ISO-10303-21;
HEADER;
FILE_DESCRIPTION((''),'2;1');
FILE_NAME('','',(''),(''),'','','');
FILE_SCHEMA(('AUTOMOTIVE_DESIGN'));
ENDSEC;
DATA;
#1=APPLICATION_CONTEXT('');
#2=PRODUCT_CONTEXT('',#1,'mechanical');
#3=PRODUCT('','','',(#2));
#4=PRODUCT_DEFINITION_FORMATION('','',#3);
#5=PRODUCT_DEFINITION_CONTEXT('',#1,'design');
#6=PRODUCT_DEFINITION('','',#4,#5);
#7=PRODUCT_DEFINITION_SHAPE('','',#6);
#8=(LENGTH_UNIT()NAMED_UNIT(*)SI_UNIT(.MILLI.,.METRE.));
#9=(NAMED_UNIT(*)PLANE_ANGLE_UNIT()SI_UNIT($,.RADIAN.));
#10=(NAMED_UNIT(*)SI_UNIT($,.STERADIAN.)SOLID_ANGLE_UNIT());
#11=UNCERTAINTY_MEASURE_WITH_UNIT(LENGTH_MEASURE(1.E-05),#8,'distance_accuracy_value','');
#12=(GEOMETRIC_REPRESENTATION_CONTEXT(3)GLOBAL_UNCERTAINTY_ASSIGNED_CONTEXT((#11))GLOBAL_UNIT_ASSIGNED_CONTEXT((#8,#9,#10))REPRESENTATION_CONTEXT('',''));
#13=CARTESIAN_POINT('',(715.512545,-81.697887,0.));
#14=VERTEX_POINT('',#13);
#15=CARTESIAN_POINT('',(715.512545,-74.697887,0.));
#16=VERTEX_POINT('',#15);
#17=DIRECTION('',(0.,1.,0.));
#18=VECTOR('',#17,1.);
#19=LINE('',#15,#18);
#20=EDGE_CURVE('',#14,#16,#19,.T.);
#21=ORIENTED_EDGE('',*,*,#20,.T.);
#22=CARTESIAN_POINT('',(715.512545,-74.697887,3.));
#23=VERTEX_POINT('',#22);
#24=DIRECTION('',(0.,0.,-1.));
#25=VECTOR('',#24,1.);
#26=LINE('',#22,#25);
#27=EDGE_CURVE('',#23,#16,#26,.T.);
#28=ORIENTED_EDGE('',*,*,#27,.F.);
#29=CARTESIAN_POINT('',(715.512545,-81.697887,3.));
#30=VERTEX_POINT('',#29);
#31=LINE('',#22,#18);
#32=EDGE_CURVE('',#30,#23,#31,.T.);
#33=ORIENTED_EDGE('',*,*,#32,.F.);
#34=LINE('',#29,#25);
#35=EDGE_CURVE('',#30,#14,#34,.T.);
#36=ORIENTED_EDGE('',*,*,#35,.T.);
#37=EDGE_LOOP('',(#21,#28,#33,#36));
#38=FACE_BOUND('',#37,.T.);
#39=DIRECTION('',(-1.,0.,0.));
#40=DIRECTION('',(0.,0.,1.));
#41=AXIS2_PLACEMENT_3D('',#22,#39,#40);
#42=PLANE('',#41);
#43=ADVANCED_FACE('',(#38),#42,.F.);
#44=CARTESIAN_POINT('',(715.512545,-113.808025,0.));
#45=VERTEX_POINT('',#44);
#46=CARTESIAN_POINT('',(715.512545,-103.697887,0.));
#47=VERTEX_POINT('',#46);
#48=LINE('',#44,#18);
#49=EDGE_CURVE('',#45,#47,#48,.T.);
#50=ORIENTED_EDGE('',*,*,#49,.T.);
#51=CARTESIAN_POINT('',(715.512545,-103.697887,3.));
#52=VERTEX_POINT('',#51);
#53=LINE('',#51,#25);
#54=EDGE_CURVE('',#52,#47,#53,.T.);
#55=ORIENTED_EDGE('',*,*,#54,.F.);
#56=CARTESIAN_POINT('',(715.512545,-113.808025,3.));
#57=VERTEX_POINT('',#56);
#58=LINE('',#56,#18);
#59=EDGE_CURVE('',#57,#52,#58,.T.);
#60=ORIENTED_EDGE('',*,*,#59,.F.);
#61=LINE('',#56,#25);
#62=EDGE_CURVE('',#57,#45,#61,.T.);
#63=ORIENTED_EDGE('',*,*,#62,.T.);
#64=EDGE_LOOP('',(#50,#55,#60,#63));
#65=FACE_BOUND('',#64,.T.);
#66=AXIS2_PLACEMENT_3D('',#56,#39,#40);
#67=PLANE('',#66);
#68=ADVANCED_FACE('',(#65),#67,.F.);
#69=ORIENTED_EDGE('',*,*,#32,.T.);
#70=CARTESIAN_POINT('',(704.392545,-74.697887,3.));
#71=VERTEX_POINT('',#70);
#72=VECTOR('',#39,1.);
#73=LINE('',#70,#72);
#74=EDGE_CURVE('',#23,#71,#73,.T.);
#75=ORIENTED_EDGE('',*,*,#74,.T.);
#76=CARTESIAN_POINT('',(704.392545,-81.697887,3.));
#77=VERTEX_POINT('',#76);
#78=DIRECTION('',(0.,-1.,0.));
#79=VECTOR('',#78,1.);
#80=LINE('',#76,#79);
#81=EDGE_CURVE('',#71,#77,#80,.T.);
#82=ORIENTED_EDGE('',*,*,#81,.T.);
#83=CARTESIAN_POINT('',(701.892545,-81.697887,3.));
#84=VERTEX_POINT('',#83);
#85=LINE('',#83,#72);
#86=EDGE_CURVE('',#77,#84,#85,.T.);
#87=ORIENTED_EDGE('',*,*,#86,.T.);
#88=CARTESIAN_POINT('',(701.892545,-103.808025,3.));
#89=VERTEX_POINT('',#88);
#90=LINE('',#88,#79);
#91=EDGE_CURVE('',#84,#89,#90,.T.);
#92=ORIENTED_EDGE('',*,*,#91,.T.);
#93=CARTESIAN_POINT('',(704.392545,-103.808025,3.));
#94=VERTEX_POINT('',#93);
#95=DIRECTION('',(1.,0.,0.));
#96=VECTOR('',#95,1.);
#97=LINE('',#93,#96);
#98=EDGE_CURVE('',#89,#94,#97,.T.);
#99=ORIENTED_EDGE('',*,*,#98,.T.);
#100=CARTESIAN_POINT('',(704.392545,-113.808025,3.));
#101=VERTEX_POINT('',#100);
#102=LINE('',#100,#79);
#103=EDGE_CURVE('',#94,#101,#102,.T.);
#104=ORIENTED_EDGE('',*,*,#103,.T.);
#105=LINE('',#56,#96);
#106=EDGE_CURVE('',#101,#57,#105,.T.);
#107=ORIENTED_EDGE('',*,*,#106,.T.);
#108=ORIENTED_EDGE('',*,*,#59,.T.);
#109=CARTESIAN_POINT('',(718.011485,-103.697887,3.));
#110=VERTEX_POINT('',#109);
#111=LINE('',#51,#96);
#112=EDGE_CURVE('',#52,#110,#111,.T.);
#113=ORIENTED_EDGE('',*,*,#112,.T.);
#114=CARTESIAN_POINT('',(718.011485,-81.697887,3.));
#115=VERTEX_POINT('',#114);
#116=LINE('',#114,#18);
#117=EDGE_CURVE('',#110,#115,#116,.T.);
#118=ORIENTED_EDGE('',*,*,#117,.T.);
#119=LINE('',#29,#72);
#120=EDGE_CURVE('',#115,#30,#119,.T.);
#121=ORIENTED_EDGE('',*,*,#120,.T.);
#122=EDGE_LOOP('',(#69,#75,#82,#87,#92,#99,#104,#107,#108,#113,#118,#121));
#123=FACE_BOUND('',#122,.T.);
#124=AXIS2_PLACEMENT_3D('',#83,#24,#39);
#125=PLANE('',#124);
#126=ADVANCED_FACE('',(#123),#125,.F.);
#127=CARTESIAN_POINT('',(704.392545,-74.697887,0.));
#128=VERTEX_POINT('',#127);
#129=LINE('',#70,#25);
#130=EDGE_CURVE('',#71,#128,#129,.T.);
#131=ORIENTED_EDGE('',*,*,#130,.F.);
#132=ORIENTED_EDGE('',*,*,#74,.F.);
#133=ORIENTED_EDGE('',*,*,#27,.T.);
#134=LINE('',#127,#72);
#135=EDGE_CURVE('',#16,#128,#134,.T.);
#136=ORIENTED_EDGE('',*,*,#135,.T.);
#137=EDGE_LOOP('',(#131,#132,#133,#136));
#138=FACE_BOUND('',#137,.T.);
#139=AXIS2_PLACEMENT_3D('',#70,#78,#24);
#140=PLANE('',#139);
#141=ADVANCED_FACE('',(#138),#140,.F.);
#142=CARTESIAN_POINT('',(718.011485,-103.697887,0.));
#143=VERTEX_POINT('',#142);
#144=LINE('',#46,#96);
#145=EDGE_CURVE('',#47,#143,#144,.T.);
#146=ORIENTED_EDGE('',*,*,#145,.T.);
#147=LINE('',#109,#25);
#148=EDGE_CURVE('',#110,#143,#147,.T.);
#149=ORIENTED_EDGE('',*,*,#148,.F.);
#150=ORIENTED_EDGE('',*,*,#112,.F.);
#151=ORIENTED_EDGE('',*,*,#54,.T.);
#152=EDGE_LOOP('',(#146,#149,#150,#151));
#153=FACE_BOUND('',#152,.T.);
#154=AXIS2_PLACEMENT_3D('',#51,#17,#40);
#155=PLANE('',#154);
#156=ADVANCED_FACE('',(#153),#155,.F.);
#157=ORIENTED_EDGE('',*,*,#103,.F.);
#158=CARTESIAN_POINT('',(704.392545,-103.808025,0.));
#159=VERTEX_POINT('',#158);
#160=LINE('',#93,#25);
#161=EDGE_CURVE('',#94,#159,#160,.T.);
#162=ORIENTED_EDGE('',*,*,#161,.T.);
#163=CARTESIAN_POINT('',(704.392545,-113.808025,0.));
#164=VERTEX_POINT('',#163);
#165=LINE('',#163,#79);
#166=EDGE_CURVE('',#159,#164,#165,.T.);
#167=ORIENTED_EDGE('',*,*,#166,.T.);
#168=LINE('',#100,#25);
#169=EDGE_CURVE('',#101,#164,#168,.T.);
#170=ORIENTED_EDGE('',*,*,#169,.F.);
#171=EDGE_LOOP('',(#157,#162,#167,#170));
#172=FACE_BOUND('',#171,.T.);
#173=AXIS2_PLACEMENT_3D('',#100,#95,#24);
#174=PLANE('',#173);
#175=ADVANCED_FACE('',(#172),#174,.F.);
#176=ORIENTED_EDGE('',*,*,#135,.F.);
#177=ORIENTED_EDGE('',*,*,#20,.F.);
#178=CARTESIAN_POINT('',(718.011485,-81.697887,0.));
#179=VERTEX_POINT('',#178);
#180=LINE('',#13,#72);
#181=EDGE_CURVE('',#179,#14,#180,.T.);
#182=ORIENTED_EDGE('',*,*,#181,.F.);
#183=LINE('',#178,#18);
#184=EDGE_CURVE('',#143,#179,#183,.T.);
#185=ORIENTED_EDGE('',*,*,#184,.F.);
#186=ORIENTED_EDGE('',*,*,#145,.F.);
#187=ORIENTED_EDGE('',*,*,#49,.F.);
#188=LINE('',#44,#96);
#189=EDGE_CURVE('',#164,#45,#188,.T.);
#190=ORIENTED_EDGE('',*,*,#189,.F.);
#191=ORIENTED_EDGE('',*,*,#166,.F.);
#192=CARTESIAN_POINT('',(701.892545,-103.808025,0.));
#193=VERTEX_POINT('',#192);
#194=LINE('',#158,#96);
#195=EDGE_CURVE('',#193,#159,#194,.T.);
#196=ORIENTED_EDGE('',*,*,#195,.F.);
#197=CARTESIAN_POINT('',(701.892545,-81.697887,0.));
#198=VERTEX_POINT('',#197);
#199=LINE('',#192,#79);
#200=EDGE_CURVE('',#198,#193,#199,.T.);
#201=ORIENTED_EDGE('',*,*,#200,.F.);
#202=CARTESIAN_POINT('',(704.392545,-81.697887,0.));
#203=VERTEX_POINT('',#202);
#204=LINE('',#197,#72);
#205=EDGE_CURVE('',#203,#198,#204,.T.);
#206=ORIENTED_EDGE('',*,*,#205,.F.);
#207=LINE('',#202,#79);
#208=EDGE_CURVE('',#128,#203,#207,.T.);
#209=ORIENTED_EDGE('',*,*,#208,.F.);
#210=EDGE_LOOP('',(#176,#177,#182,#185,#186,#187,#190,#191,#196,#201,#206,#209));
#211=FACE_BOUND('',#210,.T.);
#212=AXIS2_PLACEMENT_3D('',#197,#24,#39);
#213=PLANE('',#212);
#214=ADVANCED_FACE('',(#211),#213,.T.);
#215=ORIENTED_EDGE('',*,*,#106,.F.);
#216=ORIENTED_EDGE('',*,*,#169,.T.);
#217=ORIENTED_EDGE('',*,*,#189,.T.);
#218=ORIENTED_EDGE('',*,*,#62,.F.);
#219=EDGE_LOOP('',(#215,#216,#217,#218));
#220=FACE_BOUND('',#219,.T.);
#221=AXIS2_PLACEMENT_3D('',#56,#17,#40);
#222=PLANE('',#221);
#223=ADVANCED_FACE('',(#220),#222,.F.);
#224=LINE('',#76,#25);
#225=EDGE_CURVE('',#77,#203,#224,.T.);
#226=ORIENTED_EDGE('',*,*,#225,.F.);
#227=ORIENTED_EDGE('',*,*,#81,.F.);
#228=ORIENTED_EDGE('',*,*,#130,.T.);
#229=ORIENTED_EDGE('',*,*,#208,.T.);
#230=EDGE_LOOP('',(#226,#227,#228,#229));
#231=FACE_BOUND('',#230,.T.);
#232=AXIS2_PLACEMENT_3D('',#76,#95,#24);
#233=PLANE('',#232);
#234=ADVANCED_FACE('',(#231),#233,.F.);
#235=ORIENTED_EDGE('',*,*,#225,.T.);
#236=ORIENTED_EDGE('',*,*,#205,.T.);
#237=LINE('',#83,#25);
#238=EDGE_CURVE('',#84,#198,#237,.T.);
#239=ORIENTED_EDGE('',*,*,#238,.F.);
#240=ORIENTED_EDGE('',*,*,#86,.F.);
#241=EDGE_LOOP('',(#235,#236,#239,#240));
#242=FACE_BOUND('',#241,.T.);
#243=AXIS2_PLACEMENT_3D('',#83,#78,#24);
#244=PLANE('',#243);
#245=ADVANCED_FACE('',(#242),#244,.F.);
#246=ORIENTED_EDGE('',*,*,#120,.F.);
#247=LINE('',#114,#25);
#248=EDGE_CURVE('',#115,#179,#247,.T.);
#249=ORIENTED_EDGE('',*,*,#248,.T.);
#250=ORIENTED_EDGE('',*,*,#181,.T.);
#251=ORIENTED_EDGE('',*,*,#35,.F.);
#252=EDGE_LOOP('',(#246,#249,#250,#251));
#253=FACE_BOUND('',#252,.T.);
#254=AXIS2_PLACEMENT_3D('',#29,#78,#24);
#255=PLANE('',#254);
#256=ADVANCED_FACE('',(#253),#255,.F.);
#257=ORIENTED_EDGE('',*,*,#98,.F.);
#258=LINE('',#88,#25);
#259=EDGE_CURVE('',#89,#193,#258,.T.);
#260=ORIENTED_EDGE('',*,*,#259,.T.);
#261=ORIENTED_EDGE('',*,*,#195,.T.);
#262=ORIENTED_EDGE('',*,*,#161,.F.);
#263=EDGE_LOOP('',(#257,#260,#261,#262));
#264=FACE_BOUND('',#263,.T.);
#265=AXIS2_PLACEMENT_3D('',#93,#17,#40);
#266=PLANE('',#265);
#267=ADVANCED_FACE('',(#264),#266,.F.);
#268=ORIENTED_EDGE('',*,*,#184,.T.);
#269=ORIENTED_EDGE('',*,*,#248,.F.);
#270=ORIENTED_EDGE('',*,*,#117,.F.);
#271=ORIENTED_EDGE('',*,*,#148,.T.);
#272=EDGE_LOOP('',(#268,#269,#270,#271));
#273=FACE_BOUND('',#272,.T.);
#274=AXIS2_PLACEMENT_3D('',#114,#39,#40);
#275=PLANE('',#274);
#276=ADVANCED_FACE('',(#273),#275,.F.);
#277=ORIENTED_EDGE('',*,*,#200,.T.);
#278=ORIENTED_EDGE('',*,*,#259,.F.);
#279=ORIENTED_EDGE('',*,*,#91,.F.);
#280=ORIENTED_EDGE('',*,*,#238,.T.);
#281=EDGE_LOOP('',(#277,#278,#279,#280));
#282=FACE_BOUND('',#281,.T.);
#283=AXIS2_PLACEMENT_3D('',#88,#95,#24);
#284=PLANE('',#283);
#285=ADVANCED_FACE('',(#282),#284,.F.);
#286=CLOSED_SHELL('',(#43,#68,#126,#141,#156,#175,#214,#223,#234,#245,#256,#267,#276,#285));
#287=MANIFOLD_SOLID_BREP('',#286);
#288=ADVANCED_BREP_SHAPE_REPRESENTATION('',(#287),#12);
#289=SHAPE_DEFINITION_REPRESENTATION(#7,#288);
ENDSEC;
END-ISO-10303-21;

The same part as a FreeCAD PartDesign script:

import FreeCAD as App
import Part
import Sketcher

doc = App.newDocument("Part")
body = doc.addObject("PartDesign::Body", "Body")

sketch1 = body.newObject("Sketcher::SketchObject", "Sketch")
sketch1.AttachmentSupport = (doc.getObject("XY_Plane"), [""])
sketch1.MapMode = "FlatFace"
sketch1.addGeometry([
    Part.LineSegment(App.Vector(701.9, -103.8, 0), App.Vector(704.4, -103.8, 0)),
    Part.LineSegment(App.Vector(704.4, -103.8, 0), App.Vector(704.4, -113.8, 0)),
    Part.LineSegment(App.Vector(704.4, -113.8, 0), App.Vector(715.5, -113.8, 0)),
    Part.LineSegment(App.Vector(715.5, -113.8, 0), App.Vector(715.5, -103.7, 0)),
    Part.LineSegment(App.Vector(715.5, -103.7, 0), App.Vector(718, -103.7, 0)),
    Part.LineSegment(App.Vector(718, -103.7, 0), App.Vector(718, -81.7, 0)),
    Part.LineSegment(App.Vector(718, -81.7, 0), App.Vector(715.5, -81.7, 0)),
    Part.LineSegment(App.Vector(715.5, -81.7, 0), App.Vector(715.5, -74.7, 0)),
    Part.LineSegment(App.Vector(715.5, -74.7, 0), App.Vector(704.4, -74.7, 0)),
    Part.LineSegment(App.Vector(704.4, -74.7, 0), App.Vector(704.4, -81.7, 0)),
    Part.LineSegment(App.Vector(704.4, -81.7, 0), App.Vector(701.9, -81.7, 0)),
    Part.LineSegment(App.Vector(701.9, -81.7, 0), App.Vector(701.9, -103.8, 0)),
], False)
sketch1.addConstraint([
    Sketcher.Constraint("Coincident", 0, 2, 1, 1),
    Sketcher.Constraint("Coincident", 1, 2, 2, 1),
    Sketcher.Constraint("Coincident", 2, 2, 3, 1),
    Sketcher.Constraint("Coincident", 3, 2, 4, 1),
    Sketcher.Constraint("Coincident", 4, 2, 5, 1),
    Sketcher.Constraint("Coincident", 5, 2, 6, 1),
    Sketcher.Constraint("Coincident", 6, 2, 7, 1),
    Sketcher.Constraint("Coincident", 7, 2, 8, 1),
    Sketcher.Constraint("Coincident", 8, 2, 9, 1),
    Sketcher.Constraint("Coincident", 9, 2, 10, 1),
    Sketcher.Constraint("Coincident", 10, 2, 11, 1),
    Sketcher.Constraint("Coincident", 11, 2, 0, 1),
    Sketcher.Constraint("Horizontal", 0),
    Sketcher.Constraint("Vertical", 1),
    Sketcher.Constraint("Horizontal", 2),
    Sketcher.Constraint("Vertical", 3),
    Sketcher.Constraint("Horizontal", 4),
    Sketcher.Constraint("Vertical", 5),
    Sketcher.Constraint("Horizontal", 6),
    Sketcher.Constraint("Vertical", 7),
    Sketcher.Constraint("Horizontal", 8),
    Sketcher.Constraint("Vertical", 9),
    Sketcher.Constraint("Horizontal", 10),
    Sketcher.Constraint("Vertical", 11),
    Sketcher.Constraint("Horizontal", 6, 2, 9, 2),
    Sketcher.Constraint("Vertical", 3, 2, 6, 2),
    Sketcher.Constraint("Vertical", 1, 2, 8, 2),
    Sketcher.Constraint("DistanceY", 1, 2, 1, 1, 10.0),
    Sketcher.Constraint("DistanceY", 5, 1, 5, 2, 22.0),
    Sketcher.Constraint("DistanceY", 7, 1, 7, 2, 7.0),
    Sketcher.Constraint("DistanceX", 0, 1, 0, 2, 2.5),
    Sketcher.Constraint("DistanceX", 2, 1, 2, 2, 11.12),
    Sketcher.Constraint("DistanceX", 4, 1, 4, 2, 2.49894),
    Sketcher.Constraint("DistanceY", 3, 1, 3, 2, 10.110138),
    Sketcher.Constraint("DistanceX", -1, 1, 0, 2, 704.392545),
    Sketcher.Constraint("DistanceY", 0, 2, -1, 1, 103.808025),
])
pad1 = body.newObject("PartDesign::Pad", "Pad")
pad1.Profile = sketch1
pad1.Length = 3

doc.recompute()
